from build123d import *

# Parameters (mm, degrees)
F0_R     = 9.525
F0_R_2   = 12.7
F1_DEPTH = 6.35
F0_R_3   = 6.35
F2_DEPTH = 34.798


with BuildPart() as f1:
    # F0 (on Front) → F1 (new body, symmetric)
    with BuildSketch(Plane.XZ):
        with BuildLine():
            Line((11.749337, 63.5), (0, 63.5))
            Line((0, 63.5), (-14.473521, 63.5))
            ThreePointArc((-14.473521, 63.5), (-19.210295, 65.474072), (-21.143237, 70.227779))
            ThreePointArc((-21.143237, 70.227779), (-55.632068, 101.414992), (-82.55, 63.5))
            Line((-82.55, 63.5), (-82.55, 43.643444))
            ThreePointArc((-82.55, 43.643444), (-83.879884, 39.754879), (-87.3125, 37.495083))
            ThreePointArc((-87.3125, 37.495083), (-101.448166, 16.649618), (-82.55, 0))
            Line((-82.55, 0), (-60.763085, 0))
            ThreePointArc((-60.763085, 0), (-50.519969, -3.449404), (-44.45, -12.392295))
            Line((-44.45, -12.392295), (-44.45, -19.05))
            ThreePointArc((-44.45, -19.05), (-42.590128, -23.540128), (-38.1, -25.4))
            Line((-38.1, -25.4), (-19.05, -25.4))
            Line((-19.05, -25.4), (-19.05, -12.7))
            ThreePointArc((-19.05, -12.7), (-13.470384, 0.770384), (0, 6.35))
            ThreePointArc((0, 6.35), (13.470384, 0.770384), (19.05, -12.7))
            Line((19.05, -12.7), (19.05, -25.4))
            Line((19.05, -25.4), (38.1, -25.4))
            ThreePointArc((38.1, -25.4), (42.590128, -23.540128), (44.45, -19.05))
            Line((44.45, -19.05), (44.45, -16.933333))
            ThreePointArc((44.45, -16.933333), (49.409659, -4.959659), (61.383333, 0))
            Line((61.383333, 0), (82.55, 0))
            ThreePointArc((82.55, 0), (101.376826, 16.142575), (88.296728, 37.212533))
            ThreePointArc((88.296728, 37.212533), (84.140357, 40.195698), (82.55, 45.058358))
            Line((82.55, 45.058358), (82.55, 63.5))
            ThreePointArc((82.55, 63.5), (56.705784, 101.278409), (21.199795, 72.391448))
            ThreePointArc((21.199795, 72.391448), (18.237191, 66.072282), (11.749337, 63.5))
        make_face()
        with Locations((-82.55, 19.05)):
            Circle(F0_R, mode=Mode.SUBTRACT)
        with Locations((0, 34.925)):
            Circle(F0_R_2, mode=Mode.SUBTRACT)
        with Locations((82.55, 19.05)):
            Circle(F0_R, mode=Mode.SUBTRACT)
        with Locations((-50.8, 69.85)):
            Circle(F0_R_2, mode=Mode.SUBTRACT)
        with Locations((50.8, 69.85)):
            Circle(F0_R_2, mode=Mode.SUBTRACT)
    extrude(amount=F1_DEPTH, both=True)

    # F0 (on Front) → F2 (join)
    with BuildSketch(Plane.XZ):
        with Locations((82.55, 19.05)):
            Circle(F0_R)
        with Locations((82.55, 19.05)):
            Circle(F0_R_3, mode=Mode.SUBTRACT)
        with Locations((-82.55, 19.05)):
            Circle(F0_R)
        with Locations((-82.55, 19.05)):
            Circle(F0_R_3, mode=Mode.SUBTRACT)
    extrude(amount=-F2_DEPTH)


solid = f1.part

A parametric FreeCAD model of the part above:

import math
import FreeCAD as App
import Part
import Sketcher
Q = App.Units.Quantity

doc = App.newDocument("Part")
body = doc.addObject("PartDesign::Body", "Body")

# Sketch on XZ plane
sketch1 = body.newObject("Sketcher::SketchObject", "Sketch")
sketch1.AttachmentSupport = (doc.getObject("XZ_Plane"), [""])
sketch1.MapMode = "FlatFace"
sketch1.addGeometry([
    Part.LineSegment(App.Vector(11.7, 63.5, 0), App.Vector(-14.5, 63.5, 0)),  # 0
    Part.ArcOfCircle(Part.Circle(App.Vector(-14.5, 70.2, 0), App.Vector(0, 0, 1), 6.7), math.radians(180), math.radians(270)),  # 1
    Part.ArcOfCircle(Part.Circle(App.Vector(-52.2, 70.5, 0), App.Vector(0, 0, 1), 31.1), math.radians(0), math.radians(193)),  # 2
    Part.LineSegment(App.Vector(-82.5, 63.5, 0), App.Vector(-82.5, 43.6, 0)),  # 3
    Part.ArcOfCircle(Part.Circle(App.Vector(-88.9, 43.6, 0), App.Vector(0, 0, 1), 6.3), math.radians(-76), math.radians(0)),  # 4
    Part.ArcOfCircle(Part.Circle(App.Vector(-82.6, 19, 0), App.Vector(0, 0, 1), 19), math.radians(104), math.radians(270)),  # 5
    Part.LineSegment(App.Vector(-82.5, 0, 0), App.Vector(-60.8, 0, 0)),  # 6
    Part.ArcOfCircle(Part.Circle(App.Vector(-60.8, -16.9, 0), App.Vector(0, 0, 1), 16.9), math.radians(16), math.radians(90)),  # 7
    Part.LineSegment(App.Vector(-44.5, -12.4, 0), App.Vector(-44.5, -19.1, 0)),  # 8
    Part.ArcOfCircle(Part.Circle(App.Vector(-38.1, -19, 0), App.Vector(0, 0, 1), 6.4), math.radians(-180), math.radians(-90)),  # 9
    Part.LineSegment(App.Vector(-38.1, -25.4, 0), App.Vector(-19.1, -25.4, 0)),  # 10
    Part.LineSegment(App.Vector(-19.1, -25.4, 0), App.Vector(-19.1, -12.7, 0)),  # 11
    Part.ArcOfCircle(Part.Circle(App.Vector(0, -12.7, 0), App.Vector(0, 0, 1), 19.1), math.radians(90), math.radians(180)),  # 12
    Part.ArcOfCircle(Part.Circle(App.Vector(0, -12.7, 0), App.Vector(0, 0, 1), 19.1), math.radians(0), math.radians(90)),  # 13
    Part.LineSegment(App.Vector(19.1, -12.7, 0), App.Vector(19.1, -25.4, 0)),  # 14
    Part.LineSegment(App.Vector(19.1, -25.4, 0), App.Vector(38.1, -25.4, 0)),  # 15
    Part.ArcOfCircle(Part.Circle(App.Vector(38.1, -19, 0), App.Vector(0, 0, 1), 6.4), math.radians(-90), math.radians(0)),  # 16
    Part.LineSegment(App.Vector(44.5, -19.1, 0), App.Vector(44.5, -16.9, 0)),  # 17
    Part.ArcOfCircle(Part.Circle(App.Vector(61.4, -16.9, 0), App.Vector(0, 0, 1), 16.9), math.radians(90), math.radians(180)),  # 18
    Part.LineSegment(App.Vector(61.4, 0, 0), App.Vector(82.5, 0, 0)),  # 19
    Part.ArcOfCircle(Part.Circle(App.Vector(82.6, 19, 0), App.Vector(0, 0, 1), 19), math.radians(-90), math.radians(72)),  # 20
    Part.ArcOfCircle(Part.Circle(App.Vector(90.8, 45.1, 0), App.Vector(0, 0, 1), 8.2), math.radians(-180), math.radians(-108)),  # 21
    Part.LineSegment(App.Vector(82.5, 45.1, 0), App.Vector(82.5, 63.5, 0)),  # 22
    Part.ArcOfCircle(Part.Circle(App.Vector(52.2, 70.5, 0), App.Vector(0, 0, 1), 31.1), math.radians(-13), math.radians(177)),  # 23
    Part.ArcOfCircle(Part.Circle(App.Vector(11.7, 73, 0), App.Vector(0, 0, 1), 9.5), math.radians(-90), math.radians(-3)),  # 24
    Part.Circle(App.Vector(-82.5, 19.1, 0), App.Vector(0, 0, 1), 9.5),  # 25
    Part.Circle(App.Vector(82.5, 19.1, 0), App.Vector(0, 0, 1), 9.5),  # 26
    Part.Circle(App.Vector(0, 34.9, 0), App.Vector(0, 0, 1), 12.7),  # 27
    Part.Circle(App.Vector(-50.8, 69.8, 0), App.Vector(0, 0, 1), 12.7),  # 28
    Part.Circle(App.Vector(50.8, 69.8, 0), App.Vector(0, 0, 1), 12.7),  # 29
], False)
sketch1.addConstraint([
    Sketcher.Constraint("Tangent", 0, 2, 1, 2),
    Sketcher.Constraint("Tangent", 1, 1, 2, 1),
    Sketcher.Constraint("Coincident", 2, 2, 3, 1),
    Sketcher.Constraint("Tangent", 3, 2, 4, 2),
    Sketcher.Constraint("Tangent", 4, 1, 5, 1),
    Sketcher.Constraint("Tangent", 5, 2, 6, 1),
    Sketcher.Constraint("Tangent", 6, 2, 7, 2),
    Sketcher.Constraint("Coincident", 7, 1, 8, 1),
    Sketcher.Constraint("Tangent", 8, 2, 9, 1),
    Sketcher.Constraint("Tangent", 9, 2, 10, 1),
    Sketcher.Constraint("Coincident", 10, 2, 11, 1),
    Sketcher.Constraint("Tangent", 11, 2, 12, 2),
    Sketcher.Constraint("Tangent", 12, 1, 13, 2),
    Sketcher.Constraint("Tangent", 13, 1, 14, 1),
    Sketcher.Constraint("Coincident", 14, 2, 15, 1),
    Sketcher.Constraint("Tangent", 15, 2, 16, 1),
    Sketcher.Constraint("Tangent", 16, 2, 17, 1),
    Sketcher.Constraint("Tangent", 17, 2, 18, 2),
    Sketcher.Constraint("Tangent", 18, 1, 19, 1),
    Sketcher.Constraint("Tangent", 19, 2, 20, 1),
    Sketcher.Constraint("Tangent", 20, 2, 21, 2),
    Sketcher.Constraint("Tangent", 21, 1, 22, 1),
    Sketcher.Constraint("Coincident", 22, 2, 23, 1),
    Sketcher.Constraint("Tangent", 23, 2, 24, 2),
    Sketcher.Constraint("Tangent", 24, 1, 0, 1),
    Sketcher.Constraint("Horizontal", 0),
    Sketcher.Constraint("Vertical", 3),
    Sketcher.Constraint("Horizontal", 6),
    Sketcher.Constraint("Vertical", 8),
    Sketcher.Constraint("Horizontal", 10),
    Sketcher.Constraint("Vertical", 11),
    Sketcher.Constraint("Vertical", 14),
    Sketcher.Constraint("Horizontal", 15),
    Sketcher.Constraint("Vertical", 17),
    Sketcher.Constraint("Horizontal", 19),
    Sketcher.Constraint("Vertical", 22),
    Sketcher.Constraint("Coincident", 25, 3, 5, 3),
    Sketcher.Constraint("Coincident", 26, 3, 20, 3),
    Sketcher.Constraint("Equal", 4, 9),
    Sketcher.Constraint("Equal", 5, 12),
    Sketcher.Constraint("Equal", 12, 13),
    Sketcher.Constraint("Equal", 9, 16),
    Sketcher.Constraint("Equal", 7, 18),
    Sketcher.Constraint("Equal", 13, 20),
    Sketcher.Constraint("Equal", 2, 23),
    Sketcher.Constraint("Equal", 25, 26),
    Sketcher.Constraint("Equal", 27, 28),
    Sketcher.Constraint("Equal", 28, 29),
    Sketcher.Constraint("Symmetric", 5, 2, 19, 2, -1, 1),
    Sketcher.Constraint("Symmetric", 9, 3, 16, 3, -2),
    Sketcher.Constraint("Symmetric", 2, 3, 23, 3, -2),
    Sketcher.Constraint("Symmetric", 28, 3, 29, 3, -2),
    Sketcher.Constraint("PointOnObject", 12, 3, -2),
    Sketcher.Constraint("PointOnObject", 27, 3, -2),
    Sketcher.Constraint("PointOnObject", 5, 2, -1),
    Sketcher.Constraint("PointOnObject", 12, 1, -2),
    Sketcher.Constraint("Horizontal", 0, 2, 2, 2),
    Sketcher.Constraint("Horizontal", 2, 2, 22, 2),
    Sketcher.Constraint("Vertical", 25, 3, 2, 2),
    Sketcher.Constraint("Diameter", 27, Q("1 in")),
    Sketcher.Constraint("Diameter", 25, Q("0.75 in")),
    Sketcher.Constraint("Radius", 4, Q("0.25 in")),
    Sketcher.Constraint("Radius", 5, Q("0.75 in")),
    Sketcher.Constraint("DistanceY", 11, 1, 11, 2, Q("0.5 in")),
    Sketcher.Constraint("DistanceX", 28, 3, -1, 1, Q("2 in")),
    Sketcher.Constraint("DistanceY", 9, 2, -1, 1, Q("1 in")),
    Sketcher.Constraint("DistanceX", 4, 3, 9, 3, Q("2 in")),
    Sketcher.Constraint("DistanceX", 9, 3, 16, 3, Q("3 in")),
    Sketcher.Constraint("DistanceY", 25, 3, 28, 3, Q("2 in")),
    Sketcher.Constraint("DistanceY", -1, 1, 0, 2, Q("2.5 in")),
    Sketcher.Constraint("DistanceY", -1, 1, 27, 3, Q("1.375 in")),
    Sketcher.Constraint("Radius", 24, 9.468031),
    Sketcher.Constraint("Radius", 1, 6.669967),
    Sketcher.Constraint("Radius", 2, 31.102636),
    Sketcher.Constraint("Radius", 7, 16.933333),
    Sketcher.Constraint("Radius", 21, 8.229194),
    Sketcher.Constraint("DistanceY", 23, 2, 24, 3, Q("0.0227001 in")),
    Sketcher.Constraint("DistanceX", 6, 1, 6, 2, 21.786915),
])
pad1 = body.newObject("PartDesign::Pad", "Pad")
pad1.Profile = sketch1
pad1.Length = Q("0.5 in")
pad1.Midplane = True

# Sketch on XZ plane
sketch2 = body.newObject("Sketcher::SketchObject", "Sketch001")
sketch2.AttachmentSupport = (doc.getObject("XZ_Plane"), [""])
sketch2.MapMode = "FlatFace"
sketch2.addGeometry([
    Part.Circle(App.Vector(83, 19, 0), App.Vector(0, 0, 1), 10),
    Part.Circle(App.Vector(83, 19, 0), App.Vector(0, 0, 1), 6),
    Part.Circle(App.Vector(-83, 19, 0), App.Vector(0, 0, 1), 10),
    Part.Circle(App.Vector(-83, 19, 0), App.Vector(0, 0, 1), 6),
], False)
sketch2.addConstraint([
    Sketcher.Constraint("Coincident", 1, 3, 0, 3),
    Sketcher.Constraint("Coincident", 3, 3, 2, 3),
    Sketcher.Constraint("Equal", 0, 2),
    Sketcher.Constraint("Equal", 1, 3),
    Sketcher.Constraint("Symmetric", 0, 3, 2, 3, -2),
    Sketcher.Constraint("Diameter", 1, Q("0.5 in")),
    Sketcher.Constraint("Diameter", 0, Q("0.75 in")),
    Sketcher.Constraint("DistanceX", 2, 3, 0, 3, Q("6.5 in")),
    Sketcher.Constraint("DistanceY", -1, 1, 0, 3, Q("0.75 in")),
])
pad2 = body.newObject("PartDesign::Pad", "Pad001")
pad2.Profile = sketch2
pad2.Length = Q("1.37 in")
pad2.Reversed = True

doc.recompute()
